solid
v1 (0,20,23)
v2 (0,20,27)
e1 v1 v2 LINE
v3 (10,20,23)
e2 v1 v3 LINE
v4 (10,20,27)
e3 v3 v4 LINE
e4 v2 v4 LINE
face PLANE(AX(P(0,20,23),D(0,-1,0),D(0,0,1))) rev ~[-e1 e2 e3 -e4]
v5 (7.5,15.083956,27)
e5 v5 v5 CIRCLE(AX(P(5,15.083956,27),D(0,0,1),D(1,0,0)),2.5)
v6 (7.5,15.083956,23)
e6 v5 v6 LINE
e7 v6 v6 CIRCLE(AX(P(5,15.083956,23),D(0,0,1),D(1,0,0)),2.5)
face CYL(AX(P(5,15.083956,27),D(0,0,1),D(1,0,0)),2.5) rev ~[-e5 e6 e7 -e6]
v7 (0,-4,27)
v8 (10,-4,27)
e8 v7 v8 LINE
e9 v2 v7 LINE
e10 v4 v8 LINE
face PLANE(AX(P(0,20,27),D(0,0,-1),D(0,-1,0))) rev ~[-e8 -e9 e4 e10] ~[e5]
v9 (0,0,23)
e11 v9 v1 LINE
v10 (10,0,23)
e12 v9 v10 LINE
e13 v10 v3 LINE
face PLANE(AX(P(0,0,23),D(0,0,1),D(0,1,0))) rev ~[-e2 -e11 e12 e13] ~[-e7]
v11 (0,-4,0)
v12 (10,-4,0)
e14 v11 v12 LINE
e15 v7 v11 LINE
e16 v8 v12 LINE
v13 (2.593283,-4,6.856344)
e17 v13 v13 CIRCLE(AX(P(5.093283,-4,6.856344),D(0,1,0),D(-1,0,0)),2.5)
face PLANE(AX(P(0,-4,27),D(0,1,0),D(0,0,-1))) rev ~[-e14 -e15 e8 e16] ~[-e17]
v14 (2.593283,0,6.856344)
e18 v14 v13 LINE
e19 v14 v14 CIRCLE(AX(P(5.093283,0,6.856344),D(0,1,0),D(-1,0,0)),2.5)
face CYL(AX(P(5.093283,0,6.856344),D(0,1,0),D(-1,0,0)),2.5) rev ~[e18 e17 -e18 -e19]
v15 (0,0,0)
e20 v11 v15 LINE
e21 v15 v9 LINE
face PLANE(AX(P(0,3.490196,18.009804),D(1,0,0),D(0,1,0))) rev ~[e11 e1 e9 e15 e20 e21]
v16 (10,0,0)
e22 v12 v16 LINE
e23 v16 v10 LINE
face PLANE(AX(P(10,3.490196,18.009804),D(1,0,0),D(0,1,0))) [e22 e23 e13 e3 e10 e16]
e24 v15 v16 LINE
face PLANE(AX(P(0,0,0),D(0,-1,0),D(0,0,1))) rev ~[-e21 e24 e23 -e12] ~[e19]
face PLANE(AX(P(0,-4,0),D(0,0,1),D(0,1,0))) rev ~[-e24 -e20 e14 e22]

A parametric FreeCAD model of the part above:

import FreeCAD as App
import Part
import Sketcher
Q = App.Units.Quantity


def add_polygon(sketch, points):
    """Adds a closed chain of lines whose ends are joined by coincident constraints."""
    first, n = sketch.GeometryCount, len(points)
    for a, b in zip(points, points[1:] + points[:1]):
        sketch.addGeometry(Part.LineSegment(App.Vector(*a, 0), App.Vector(*b, 0)), False)
    for i in range(n):
        sketch.addConstraint(Sketcher.Constraint("Coincident", first + i, 2, first + (i + 1) % n, 1))

doc = App.newDocument("Part")
body = doc.addObject("PartDesign::Body", "Body")

# Sketch on YZ plane
sketch1 = doc.addObject("Sketcher::SketchObject", "Sketch")
body.addObject(sketch1)
sketch1.AttachmentSupport = (doc.YZ_Plane, [""])
sketch1.MapMode = "FlatFace"
add_polygon(sketch1, [(-4, 0), (0, 0), (0, 23), (20, 23), (20, 27), (-4, 27)])  # lines 0-5
sketch1.addConstraint([
    Sketcher.Constraint("Horizontal", 0),
    Sketcher.Constraint("Vertical", 1),
    Sketcher.Constraint("Horizontal", 2),
    Sketcher.Constraint("Vertical", 3),
    Sketcher.Constraint("Horizontal", 4),
    Sketcher.Constraint("Vertical", 5),
    Sketcher.Constraint("Coincident", 0, 2, -1, 1),
    Sketcher.Constraint("Equal", 0, 3),
    Sketcher.Constraint("DistanceX", 0, 1, 0, 2, Q("4 mm")),
    Sketcher.Constraint("DistanceX", 2, 1, 2, 2, Q("20 mm")),
    Sketcher.Constraint("DistanceY", 1, 1, 1, 2, Q("23 mm")),
])
pad1 = doc.addObject("PartDesign::Pad", "Pad")
body.addObject(pad1)
pad1.Profile = sketch1
pad1.Length = 10

# Sketch on XZ plane
sketch2 = doc.addObject("Sketcher::SketchObject", "Sketch001")
body.addObject(sketch2)
sketch2.AttachmentSupport = (doc.XZ_Plane, [""])
sketch2.MapMode = "FlatFace"
sketch2.addGeometry(Part.Circle(App.Vector(5.1, 6.9, 0), App.Vector(0, 0, 1), 2.5), False)
sketch2.addConstraint([
    Sketcher.Constraint("Diameter", 0, Q("5 mm")),
    Sketcher.Constraint("DistanceX", -1, 1, 0, 3, Q("5.093283 mm")),
    Sketcher.Constraint("DistanceY", -1, 1, 0, 3, Q("6.856344 mm")),
])
pocket1 = doc.addObject("PartDesign::Pocket", "Pocket")
body.addObject(pocket1)
pocket1.Profile = sketch2
pocket1.Length = 25
pocket1.Reversed = True

# Sketch on XY plane
sketch3 = doc.addObject("Sketcher::SketchObject", "Sketch002")
body.addObject(sketch3)
sketch3.AttachmentSupport = (doc.XY_Plane, [""])
sketch3.MapMode = "FlatFace"
sketch3.AttachmentOffset = App.Placement(App.Vector(0, 0, 27), App.Rotation())
sketch3.addGeometry(Part.Circle(App.Vector(5, 15.1, 0), App.Vector(0, 0, 1), 2.5), False)
sketch3.addConstraint([
    Sketcher.Constraint("Diameter", 0, Q("5 mm")),
    Sketcher.Constraint("DistanceX", -1, 1, 0, 3, Q("5 mm")),
    Sketcher.Constraint("DistanceY", -1, 1, 0, 3, Q("15.083956 mm")),
])
pocket2 = doc.addObject("PartDesign::Pocket", "Pocket001")
body.addObject(pocket2)
pocket2.Profile = sketch3
pocket2.Length = 36.2

doc.recompute()
